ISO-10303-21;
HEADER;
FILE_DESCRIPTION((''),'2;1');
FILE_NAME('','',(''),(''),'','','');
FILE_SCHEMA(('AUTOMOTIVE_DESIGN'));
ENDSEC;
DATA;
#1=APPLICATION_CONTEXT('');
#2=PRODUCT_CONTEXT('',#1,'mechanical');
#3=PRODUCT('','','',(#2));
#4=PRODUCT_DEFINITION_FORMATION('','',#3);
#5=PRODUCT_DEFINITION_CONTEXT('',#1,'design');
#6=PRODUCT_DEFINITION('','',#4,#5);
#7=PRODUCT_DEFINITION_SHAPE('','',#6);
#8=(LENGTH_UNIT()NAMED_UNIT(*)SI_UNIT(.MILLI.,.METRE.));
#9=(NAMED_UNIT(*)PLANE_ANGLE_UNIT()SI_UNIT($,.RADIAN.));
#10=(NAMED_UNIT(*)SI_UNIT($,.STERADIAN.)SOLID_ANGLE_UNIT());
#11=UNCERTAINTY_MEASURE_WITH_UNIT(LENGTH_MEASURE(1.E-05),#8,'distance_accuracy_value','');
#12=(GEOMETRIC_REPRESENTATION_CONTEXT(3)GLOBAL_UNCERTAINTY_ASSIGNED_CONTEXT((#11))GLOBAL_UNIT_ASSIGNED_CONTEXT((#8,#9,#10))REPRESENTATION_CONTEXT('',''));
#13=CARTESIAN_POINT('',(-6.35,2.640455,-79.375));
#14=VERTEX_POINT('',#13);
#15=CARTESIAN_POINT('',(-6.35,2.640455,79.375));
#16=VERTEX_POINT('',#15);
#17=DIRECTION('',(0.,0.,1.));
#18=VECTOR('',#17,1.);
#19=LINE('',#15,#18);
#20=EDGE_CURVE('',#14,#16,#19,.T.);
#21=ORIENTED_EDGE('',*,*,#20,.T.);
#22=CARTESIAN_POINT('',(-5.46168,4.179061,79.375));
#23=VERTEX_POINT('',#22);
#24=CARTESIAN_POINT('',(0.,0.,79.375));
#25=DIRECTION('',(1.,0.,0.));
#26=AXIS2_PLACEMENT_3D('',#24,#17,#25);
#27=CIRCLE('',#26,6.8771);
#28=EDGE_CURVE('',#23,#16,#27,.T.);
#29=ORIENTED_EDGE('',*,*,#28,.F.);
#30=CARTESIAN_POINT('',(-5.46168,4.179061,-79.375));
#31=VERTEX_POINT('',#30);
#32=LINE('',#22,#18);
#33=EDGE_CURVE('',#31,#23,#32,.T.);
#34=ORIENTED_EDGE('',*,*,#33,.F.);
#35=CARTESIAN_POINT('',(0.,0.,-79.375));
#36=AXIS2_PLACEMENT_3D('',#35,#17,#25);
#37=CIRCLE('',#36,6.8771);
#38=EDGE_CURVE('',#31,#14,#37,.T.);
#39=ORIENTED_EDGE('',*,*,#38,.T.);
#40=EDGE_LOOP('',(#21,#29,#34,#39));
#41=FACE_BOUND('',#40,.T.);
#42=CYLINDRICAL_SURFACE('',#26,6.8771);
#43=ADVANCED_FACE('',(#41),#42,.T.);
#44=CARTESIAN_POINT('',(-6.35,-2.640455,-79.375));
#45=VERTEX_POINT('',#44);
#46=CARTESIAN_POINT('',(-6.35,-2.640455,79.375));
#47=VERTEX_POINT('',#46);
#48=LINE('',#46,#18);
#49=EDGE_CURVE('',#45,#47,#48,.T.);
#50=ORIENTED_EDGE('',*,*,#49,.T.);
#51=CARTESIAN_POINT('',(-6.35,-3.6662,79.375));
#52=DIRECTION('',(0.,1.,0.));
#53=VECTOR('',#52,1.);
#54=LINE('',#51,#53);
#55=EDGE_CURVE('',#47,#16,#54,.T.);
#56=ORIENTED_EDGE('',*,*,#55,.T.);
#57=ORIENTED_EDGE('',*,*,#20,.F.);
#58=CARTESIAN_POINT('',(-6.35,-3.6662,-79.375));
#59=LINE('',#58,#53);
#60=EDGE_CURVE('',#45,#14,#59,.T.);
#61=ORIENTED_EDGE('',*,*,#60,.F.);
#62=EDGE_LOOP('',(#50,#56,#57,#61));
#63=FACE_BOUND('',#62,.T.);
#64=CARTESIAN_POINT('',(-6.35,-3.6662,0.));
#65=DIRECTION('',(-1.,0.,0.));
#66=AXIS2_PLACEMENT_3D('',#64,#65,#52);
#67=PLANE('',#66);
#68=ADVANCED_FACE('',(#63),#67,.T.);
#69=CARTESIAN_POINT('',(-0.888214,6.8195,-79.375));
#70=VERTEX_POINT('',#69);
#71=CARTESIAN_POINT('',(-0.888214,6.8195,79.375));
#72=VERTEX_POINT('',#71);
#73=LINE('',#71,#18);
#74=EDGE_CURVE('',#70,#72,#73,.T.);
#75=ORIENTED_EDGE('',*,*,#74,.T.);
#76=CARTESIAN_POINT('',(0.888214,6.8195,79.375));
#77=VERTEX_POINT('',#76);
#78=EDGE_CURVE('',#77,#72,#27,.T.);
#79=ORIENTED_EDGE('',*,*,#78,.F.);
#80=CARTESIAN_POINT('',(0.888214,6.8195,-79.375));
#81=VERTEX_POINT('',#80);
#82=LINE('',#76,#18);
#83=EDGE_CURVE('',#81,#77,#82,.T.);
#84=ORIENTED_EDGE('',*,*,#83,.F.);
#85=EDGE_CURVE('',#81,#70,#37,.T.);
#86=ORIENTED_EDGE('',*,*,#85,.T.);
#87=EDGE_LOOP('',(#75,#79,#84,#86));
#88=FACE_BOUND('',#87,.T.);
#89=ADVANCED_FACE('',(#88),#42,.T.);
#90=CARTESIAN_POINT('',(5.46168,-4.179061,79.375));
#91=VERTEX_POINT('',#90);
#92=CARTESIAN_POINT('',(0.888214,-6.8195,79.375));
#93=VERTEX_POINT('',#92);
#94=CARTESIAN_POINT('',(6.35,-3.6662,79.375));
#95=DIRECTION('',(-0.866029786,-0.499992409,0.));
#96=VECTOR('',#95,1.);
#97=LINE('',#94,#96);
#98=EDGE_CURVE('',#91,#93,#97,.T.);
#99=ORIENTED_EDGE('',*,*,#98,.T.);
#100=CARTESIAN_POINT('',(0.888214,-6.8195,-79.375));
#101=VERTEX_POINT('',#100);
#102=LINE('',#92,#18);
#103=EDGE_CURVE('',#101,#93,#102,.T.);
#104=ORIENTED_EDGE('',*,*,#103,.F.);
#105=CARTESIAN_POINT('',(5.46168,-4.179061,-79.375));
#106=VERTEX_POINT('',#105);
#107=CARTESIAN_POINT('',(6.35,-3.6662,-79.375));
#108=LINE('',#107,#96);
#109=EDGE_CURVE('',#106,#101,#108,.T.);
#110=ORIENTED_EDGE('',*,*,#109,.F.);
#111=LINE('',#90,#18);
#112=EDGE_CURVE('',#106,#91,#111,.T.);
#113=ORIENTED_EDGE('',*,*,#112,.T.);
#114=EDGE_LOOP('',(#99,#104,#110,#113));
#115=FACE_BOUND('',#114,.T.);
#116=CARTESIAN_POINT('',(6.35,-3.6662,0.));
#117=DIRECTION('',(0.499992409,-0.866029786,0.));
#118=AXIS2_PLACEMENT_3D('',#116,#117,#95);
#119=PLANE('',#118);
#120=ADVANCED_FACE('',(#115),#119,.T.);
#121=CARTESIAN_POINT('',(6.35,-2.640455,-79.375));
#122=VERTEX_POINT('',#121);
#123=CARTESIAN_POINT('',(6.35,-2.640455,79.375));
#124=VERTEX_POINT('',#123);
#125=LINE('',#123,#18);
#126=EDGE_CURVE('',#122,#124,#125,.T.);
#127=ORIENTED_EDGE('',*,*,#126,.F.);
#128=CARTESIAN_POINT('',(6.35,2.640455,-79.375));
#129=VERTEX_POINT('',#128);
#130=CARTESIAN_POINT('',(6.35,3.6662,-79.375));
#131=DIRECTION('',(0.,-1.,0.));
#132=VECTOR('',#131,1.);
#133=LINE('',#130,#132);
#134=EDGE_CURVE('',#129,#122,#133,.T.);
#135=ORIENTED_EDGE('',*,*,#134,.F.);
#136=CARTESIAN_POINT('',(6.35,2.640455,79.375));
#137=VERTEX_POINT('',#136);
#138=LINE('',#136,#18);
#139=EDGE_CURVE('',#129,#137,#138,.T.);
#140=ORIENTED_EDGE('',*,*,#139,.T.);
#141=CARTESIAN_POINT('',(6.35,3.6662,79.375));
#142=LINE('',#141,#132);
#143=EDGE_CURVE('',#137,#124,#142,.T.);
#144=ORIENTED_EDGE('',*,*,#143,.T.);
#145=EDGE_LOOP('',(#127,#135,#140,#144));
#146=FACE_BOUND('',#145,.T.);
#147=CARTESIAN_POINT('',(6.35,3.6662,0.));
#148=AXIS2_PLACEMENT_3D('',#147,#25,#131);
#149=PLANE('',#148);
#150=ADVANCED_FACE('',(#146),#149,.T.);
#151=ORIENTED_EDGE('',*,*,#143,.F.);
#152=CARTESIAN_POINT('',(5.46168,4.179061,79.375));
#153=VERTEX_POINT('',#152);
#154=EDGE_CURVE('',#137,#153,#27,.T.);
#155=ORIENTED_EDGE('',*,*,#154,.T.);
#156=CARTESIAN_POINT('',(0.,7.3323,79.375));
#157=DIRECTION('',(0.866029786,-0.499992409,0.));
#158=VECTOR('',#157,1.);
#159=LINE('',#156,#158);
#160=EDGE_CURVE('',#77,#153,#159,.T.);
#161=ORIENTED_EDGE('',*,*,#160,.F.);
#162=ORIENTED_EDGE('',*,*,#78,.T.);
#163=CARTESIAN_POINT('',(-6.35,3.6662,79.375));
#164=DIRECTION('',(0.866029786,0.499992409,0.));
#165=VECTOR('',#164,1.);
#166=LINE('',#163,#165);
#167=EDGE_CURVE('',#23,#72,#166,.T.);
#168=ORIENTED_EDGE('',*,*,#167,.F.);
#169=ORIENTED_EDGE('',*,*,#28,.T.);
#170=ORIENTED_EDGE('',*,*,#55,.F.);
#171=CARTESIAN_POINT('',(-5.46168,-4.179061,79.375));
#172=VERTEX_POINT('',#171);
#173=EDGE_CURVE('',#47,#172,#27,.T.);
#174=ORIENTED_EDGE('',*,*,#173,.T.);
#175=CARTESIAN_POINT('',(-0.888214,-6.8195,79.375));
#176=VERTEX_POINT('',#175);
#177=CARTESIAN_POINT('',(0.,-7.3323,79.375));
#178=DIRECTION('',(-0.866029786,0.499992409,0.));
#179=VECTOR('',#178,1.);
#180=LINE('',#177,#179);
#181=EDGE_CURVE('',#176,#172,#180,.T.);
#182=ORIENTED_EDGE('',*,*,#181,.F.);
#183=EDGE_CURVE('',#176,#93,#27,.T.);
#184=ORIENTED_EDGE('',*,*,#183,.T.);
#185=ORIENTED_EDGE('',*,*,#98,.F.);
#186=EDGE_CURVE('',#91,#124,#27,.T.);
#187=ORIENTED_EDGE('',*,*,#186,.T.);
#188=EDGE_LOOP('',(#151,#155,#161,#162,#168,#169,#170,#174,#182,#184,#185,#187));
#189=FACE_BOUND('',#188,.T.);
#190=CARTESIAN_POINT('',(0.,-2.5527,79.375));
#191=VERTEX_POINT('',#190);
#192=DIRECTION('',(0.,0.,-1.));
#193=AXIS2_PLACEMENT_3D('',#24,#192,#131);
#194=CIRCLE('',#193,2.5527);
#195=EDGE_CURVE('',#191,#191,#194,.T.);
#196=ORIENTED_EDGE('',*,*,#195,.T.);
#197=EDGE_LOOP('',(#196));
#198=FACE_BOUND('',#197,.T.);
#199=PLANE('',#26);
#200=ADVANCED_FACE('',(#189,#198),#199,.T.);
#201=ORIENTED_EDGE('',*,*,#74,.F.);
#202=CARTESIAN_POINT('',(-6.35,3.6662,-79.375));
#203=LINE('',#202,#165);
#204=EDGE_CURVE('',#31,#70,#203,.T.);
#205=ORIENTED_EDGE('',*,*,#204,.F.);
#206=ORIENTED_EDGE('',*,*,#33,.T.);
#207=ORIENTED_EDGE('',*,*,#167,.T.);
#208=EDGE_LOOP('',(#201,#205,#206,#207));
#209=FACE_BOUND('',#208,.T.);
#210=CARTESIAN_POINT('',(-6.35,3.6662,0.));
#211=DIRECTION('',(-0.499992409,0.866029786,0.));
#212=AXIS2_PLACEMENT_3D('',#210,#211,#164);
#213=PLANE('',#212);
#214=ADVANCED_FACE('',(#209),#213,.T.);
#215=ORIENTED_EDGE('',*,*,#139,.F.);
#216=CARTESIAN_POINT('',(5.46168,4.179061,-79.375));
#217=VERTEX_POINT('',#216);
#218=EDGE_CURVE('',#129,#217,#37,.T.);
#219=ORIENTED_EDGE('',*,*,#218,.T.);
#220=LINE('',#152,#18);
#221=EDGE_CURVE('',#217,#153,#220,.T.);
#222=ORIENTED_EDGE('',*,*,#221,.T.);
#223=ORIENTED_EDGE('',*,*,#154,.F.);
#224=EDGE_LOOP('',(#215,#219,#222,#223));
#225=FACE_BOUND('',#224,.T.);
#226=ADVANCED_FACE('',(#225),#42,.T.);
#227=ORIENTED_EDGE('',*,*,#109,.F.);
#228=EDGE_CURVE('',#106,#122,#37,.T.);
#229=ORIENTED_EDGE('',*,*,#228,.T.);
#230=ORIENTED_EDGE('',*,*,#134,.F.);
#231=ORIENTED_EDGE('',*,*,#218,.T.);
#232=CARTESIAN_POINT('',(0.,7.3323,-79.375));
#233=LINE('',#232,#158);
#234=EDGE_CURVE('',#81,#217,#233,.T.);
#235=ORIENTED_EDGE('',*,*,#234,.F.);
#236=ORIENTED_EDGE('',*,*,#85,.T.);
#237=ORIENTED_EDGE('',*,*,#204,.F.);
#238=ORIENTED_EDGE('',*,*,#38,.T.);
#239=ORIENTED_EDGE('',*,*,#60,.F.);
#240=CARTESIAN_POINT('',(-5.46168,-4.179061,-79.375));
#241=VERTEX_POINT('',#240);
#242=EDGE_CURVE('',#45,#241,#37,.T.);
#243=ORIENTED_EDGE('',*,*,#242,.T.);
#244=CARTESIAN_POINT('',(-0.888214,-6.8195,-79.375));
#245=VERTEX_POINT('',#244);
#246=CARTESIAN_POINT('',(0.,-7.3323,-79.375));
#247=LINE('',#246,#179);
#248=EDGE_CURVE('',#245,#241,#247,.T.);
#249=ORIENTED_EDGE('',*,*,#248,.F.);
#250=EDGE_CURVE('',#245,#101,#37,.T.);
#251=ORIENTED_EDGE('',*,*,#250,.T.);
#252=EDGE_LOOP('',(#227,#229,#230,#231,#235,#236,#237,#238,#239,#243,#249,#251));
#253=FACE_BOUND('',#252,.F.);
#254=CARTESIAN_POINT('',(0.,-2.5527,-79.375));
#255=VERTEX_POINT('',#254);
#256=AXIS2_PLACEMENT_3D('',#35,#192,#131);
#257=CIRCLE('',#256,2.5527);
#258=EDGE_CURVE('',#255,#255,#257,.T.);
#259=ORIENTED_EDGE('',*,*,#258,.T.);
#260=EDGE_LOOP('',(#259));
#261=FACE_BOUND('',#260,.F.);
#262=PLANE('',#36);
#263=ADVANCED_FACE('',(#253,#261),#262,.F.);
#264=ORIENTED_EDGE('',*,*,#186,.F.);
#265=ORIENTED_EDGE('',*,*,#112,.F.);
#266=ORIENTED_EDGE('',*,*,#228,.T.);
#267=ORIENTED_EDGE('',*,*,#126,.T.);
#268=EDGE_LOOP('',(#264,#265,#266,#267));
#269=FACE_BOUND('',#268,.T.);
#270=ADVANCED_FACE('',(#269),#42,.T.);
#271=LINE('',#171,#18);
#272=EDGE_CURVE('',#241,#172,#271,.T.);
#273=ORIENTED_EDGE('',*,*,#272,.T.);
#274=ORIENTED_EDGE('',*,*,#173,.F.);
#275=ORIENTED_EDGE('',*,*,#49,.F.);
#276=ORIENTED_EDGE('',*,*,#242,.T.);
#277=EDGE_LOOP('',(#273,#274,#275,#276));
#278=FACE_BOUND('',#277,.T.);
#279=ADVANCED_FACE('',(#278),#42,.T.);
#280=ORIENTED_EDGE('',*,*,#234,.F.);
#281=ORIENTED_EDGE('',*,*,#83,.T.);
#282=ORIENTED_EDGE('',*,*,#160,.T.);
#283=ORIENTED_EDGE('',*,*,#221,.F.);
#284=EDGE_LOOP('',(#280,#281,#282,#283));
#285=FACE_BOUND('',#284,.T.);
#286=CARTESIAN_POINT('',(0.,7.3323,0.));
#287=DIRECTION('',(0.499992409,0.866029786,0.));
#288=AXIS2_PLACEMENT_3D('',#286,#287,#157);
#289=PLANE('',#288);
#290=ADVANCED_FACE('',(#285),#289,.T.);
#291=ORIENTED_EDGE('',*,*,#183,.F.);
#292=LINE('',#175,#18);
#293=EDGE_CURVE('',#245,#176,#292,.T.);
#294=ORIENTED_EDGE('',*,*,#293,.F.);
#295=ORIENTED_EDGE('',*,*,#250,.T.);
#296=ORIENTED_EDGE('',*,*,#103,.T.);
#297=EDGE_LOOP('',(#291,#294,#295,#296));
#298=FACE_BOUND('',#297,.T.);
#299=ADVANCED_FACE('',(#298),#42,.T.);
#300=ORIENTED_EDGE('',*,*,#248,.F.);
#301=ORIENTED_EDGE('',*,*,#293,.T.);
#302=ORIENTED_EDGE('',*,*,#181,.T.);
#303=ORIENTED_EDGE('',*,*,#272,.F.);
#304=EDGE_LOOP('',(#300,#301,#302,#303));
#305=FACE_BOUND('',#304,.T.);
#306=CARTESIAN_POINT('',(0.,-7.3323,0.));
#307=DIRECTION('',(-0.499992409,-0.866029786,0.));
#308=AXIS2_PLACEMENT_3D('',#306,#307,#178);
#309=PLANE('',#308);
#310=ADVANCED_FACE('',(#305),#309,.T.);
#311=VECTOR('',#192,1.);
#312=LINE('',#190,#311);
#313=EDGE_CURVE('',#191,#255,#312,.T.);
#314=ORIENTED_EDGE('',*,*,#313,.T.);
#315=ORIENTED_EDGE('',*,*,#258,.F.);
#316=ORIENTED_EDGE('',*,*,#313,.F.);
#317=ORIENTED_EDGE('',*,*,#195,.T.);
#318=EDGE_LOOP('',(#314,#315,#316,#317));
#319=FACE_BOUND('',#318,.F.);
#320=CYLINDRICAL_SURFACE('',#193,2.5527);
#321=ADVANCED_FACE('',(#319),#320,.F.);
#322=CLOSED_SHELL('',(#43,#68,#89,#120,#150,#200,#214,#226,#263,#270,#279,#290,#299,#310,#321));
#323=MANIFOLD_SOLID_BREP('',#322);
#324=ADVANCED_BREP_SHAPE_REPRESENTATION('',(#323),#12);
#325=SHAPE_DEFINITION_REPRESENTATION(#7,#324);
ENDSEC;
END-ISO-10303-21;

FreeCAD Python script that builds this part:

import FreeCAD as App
import Part
import Sketcher
from FreeCAD import Vector
Q = App.Units.Quantity

doc = App.newDocument("Part")
body = doc.addObject("PartDesign::Body", "Body")

# Sketch on XY plane
sketch1 = doc.addObject("Sketcher::SketchObject", "Sketch")
body.addObject(sketch1)
sketch1.AttachmentSupport = (doc.XY_Plane, [""])
sketch1.MapMode = "FlatFace"
sketch1.addGeometry([
    Part.LineSegment(Vector(-6, 4, 0), Vector(-6, -4, 0)),  # 0
    Part.LineSegment(Vector(-6, -4, 0), Vector(0, -7, 0)),  # 1
    Part.LineSegment(Vector(0, -7, 0), Vector(6, -4, 0)),  # 2
    Part.LineSegment(Vector(6, -4, 0), Vector(6, 4, 0)),  # 3
    Part.LineSegment(Vector(6, 4, 0), Vector(0, 7, 0)),  # 4
    Part.LineSegment(Vector(0, 7, 0), Vector(-6, 4, 0)),  # 5
], False)
sketch1.addConstraint([
    Sketcher.Constraint("Coincident", 0, 2, 1, 1),
    Sketcher.Constraint("Coincident", 1, 2, 2, 1),
    Sketcher.Constraint("Coincident", 2, 2, 3, 1),
    Sketcher.Constraint("Coincident", 3, 2, 4, 1),
    Sketcher.Constraint("Coincident", 4, 2, 5, 1),
    Sketcher.Constraint("Coincident", 5, 2, 0, 1),
    Sketcher.Constraint("Vertical", 0),
    Sketcher.Constraint("Vertical", 3),
    Sketcher.Constraint("Symmetric", 0, 2, 3, 2, -1, 1),
    Sketcher.Constraint("Symmetric", 1, 2, 4, 2, -1, 1),
    Sketcher.Constraint("PointOnObject", 1, 2, -2),
    Sketcher.Constraint("Parallel", 2, 5),
    Sketcher.Constraint("Horizontal", 0, 2, 2, 2),
    Sketcher.Constraint("DistanceX", 0, 2, 2, 2, Q("0.5 in")),
    Sketcher.Constraint("Angle", 1, Q("-29.9995 deg")),
    Sketcher.Constraint("DistanceY", 1, 2, 3, 2, Q("0.433 in")),
])
pad1 = doc.addObject("PartDesign::Pad", "Pad")
body.addObject(pad1)
pad1.Profile = sketch1
pad1.Length = Q("6.25 in")
pad1.Midplane = True

# Sketch on XY plane
sketch2 = doc.addObject("Sketcher::SketchObject", "Sketch001")
body.addObject(sketch2)
sketch2.AttachmentSupport = (doc.XY_Plane, [""])
sketch2.MapMode = "FlatFace"
sketch2.AttachmentOffset = App.Placement(Vector(0, 0, 3.125 * 25.4), App.Rotation())
sketch2.addGeometry(Part.Circle(Vector(0, 0, 0), Vector(0, 0, 1), 2.6), False)
sketch2.addConstraint([
    Sketcher.Constraint("Coincident", 0, 3, -1, 1),
    Sketcher.Constraint("Diameter", 0, Q("0.201 in")),
])
doc.recompute()
hole = doc.addObject("PartDesign::Hole", "Hole")
body.addObject(hole)
hole.Profile = sketch2
hole.ThreadType = "None"
hole.Diameter = Q("0.201 in")
hole.DepthType = "ThroughAll"

# Sketch on XY plane
sketch3 = doc.addObject("Sketcher::SketchObject", "Sketch002")
body.addObject(sketch3)
sketch3.AttachmentSupport = (doc.XY_Plane, [""])
sketch3.MapMode = "FlatFace"
sketch3.AttachmentOffset = App.Placement(Vector(0, 0, 3.125 * 25.4), App.Rotation())
sketch3.addGeometry([
    Part.Circle(Vector(0, 0, 0), Vector(0, 0, 1), 9),
    Part.Circle(Vector(0, 0, 0), Vector(0, 0, 1), 7),
], False)
sketch3.addConstraint([
    Sketcher.Constraint("Coincident", 0, 3, -1, 1),
    Sketcher.Constraint("Coincident", 1, 3, -1, 1),
    Sketcher.Constraint("Diameter", 0, Q("0.7 in")),
    Sketcher.Constraint("Diameter", 1, Q("0.5415 in")),
])
pocket1 = doc.addObject("PartDesign::Pocket", "Pocket")
body.addObject(pocket1)
pocket1.Profile = sketch3
pocket1.Type = "ThroughAll"

doc.recompute()
